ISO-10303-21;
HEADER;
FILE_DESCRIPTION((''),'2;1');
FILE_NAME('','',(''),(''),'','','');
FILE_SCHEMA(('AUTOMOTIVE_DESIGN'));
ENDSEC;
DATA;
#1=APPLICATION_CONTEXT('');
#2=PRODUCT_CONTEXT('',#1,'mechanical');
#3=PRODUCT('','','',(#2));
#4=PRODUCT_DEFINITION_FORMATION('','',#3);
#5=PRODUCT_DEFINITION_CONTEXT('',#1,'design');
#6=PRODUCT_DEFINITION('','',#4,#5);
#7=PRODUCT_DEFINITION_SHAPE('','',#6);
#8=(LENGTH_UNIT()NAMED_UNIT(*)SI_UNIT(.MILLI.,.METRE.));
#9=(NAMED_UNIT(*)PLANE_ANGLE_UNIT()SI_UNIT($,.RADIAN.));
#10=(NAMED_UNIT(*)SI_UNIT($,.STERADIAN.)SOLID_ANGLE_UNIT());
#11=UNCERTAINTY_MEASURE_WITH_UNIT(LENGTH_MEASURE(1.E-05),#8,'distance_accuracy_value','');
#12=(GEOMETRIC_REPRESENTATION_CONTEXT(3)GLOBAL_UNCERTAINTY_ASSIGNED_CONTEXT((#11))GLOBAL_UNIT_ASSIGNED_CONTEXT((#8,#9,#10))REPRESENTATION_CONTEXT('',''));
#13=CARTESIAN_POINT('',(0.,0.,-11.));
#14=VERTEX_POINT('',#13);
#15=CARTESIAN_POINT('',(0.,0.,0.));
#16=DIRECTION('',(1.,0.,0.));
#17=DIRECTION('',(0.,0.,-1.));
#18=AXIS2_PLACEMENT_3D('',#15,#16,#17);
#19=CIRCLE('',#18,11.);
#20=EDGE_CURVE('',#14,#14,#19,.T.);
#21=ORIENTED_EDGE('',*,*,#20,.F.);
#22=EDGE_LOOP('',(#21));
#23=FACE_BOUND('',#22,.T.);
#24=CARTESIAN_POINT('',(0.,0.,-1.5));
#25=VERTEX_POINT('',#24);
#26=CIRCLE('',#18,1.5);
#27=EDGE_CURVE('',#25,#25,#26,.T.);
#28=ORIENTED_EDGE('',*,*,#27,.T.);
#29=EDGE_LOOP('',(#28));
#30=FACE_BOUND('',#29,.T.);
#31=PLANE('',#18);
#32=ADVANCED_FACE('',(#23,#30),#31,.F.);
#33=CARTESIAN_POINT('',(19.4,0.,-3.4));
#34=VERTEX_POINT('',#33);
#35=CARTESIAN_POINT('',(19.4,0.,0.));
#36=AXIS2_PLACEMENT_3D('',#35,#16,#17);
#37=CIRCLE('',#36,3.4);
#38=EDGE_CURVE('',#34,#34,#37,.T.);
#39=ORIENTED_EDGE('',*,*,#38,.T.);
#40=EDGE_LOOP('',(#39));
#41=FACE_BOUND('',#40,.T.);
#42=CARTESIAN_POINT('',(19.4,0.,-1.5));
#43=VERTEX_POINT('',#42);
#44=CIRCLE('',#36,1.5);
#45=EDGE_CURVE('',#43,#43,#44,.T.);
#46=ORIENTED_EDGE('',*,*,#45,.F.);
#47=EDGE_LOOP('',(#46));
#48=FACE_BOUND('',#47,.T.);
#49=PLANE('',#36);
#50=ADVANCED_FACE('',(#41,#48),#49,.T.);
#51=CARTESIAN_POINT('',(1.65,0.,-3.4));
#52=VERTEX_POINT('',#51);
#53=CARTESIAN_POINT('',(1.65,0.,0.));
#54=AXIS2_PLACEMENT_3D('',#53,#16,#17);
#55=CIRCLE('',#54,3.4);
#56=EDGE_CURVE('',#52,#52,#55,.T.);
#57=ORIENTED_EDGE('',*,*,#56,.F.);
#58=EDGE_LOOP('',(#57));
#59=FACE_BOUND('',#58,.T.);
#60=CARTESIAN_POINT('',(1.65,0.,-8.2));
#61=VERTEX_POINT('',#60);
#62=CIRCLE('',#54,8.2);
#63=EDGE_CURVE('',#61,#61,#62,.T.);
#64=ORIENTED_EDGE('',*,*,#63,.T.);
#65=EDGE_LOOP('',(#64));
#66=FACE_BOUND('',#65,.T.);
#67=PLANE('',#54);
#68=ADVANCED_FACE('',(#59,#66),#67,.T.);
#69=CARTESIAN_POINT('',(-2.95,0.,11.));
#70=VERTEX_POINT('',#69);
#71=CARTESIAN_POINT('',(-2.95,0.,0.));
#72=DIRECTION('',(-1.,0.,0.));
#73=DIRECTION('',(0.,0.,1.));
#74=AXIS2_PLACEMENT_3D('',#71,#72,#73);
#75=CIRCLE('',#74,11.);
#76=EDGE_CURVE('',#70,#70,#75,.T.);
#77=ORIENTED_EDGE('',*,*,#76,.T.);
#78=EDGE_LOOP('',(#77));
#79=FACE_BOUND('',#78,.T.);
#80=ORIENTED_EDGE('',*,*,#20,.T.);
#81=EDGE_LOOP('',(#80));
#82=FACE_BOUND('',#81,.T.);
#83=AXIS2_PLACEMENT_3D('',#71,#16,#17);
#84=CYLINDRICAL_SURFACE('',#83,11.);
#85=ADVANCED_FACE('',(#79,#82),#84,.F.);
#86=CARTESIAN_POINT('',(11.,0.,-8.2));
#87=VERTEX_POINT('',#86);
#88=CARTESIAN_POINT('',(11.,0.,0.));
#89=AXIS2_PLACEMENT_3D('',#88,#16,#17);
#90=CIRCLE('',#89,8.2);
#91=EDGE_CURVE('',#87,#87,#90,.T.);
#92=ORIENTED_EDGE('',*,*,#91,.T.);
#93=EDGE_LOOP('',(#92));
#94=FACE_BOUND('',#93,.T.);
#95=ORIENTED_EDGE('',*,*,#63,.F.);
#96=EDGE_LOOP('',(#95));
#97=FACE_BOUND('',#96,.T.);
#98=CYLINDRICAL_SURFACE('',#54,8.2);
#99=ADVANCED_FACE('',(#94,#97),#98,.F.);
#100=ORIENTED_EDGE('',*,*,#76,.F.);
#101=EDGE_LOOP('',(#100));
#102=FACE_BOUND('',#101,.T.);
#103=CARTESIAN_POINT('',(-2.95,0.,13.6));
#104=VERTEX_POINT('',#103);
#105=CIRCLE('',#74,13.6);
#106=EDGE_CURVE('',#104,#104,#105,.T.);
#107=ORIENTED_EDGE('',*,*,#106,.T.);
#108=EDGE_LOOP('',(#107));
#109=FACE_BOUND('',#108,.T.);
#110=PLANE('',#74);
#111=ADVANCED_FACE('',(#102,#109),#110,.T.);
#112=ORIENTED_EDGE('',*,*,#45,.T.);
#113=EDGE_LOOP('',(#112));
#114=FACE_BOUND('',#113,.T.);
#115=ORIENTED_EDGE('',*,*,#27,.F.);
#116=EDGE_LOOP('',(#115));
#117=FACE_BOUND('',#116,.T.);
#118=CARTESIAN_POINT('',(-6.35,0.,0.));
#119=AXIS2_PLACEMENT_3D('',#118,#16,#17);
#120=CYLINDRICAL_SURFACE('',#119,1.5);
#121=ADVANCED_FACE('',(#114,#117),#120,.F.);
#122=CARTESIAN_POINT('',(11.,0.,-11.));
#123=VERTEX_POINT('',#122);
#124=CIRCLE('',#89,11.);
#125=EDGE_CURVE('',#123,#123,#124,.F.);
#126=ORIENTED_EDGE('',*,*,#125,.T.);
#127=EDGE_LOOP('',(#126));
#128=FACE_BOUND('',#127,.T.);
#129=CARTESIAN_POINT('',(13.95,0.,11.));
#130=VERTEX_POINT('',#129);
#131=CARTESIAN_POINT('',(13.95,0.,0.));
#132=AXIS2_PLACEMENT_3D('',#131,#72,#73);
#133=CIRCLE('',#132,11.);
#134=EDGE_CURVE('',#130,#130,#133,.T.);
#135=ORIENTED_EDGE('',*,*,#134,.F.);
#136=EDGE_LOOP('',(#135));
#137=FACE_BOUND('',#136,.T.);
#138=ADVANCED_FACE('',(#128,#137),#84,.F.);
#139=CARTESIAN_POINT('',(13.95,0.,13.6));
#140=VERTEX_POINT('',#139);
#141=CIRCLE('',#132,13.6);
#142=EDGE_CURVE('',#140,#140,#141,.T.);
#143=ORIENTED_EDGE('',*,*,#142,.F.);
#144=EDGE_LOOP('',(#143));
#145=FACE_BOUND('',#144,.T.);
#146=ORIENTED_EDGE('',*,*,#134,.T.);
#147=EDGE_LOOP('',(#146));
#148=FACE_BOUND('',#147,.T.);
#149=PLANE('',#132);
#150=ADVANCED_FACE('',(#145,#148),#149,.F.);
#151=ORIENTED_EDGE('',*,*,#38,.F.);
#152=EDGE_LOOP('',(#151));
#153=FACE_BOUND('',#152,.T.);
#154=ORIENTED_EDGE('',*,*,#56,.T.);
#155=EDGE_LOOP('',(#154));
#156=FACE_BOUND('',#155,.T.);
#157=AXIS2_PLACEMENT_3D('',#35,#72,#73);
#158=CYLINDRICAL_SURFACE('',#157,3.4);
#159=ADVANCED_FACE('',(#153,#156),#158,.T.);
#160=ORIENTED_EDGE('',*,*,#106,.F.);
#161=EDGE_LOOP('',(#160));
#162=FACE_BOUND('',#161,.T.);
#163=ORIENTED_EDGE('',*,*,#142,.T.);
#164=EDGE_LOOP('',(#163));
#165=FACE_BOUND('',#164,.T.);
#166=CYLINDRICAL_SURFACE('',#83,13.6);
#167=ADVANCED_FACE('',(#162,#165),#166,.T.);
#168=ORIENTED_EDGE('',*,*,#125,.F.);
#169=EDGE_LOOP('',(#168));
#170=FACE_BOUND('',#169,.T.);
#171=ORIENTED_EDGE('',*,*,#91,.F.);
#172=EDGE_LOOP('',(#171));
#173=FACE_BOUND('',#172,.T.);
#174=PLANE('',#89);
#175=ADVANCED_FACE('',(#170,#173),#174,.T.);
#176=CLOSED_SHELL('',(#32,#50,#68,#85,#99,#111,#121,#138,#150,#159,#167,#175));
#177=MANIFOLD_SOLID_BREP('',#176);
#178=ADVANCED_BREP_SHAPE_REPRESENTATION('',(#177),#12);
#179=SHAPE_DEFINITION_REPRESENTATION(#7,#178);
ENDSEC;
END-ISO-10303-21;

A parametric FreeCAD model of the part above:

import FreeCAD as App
import Part
import Sketcher
from FreeCAD import Vector
Q = App.Units.Quantity

doc = App.newDocument("Part")
body = doc.addObject("PartDesign::Body", "Body")

sketch1 = body.newObject("Sketcher::SketchObject", "Sketch")
sketch1.AttachmentSupport = (doc.getObject("YZ_Plane"), [""])
sketch1.MapMode = "FlatFace"
sketch1.addGeometry(Part.Circle(Vector(0, 0, 0), Vector(0, 0, 1), 11), False)
sketch1.addConstraint([
    Sketcher.Constraint("Coincident", 0, 3, -1, 1),
    Sketcher.Constraint("Diameter", 0, Q("22 mm")),
])
pad1 = body.newObject("PartDesign::Pad", "Pad")
pad1.Profile = sketch1
pad1.Length = 11

sketch2 = body.newObject("Sketcher::SketchObject", "Sketch001")
sketch2.AttachmentSupport = (doc.getObject("YZ_Plane"), [""])
sketch2.MapMode = "FlatFace"
sketch2.AttachmentOffset = App.Placement(Vector(0, 0, 11), App.Rotation())
sketch2.addGeometry(Part.Circle(Vector(0, 0, 0), Vector(0, 0, 1), 8), False)
sketch2.addConstraint([
    Sketcher.Constraint("Coincident", 0, 3, -1, 1),
    Sketcher.Constraint("Diameter", 0, Q("16.4 mm")),
])
pocket1 = body.newObject("PartDesign::Pocket", "Pocket")
pocket1.Profile = sketch2
pocket1.Length = 9.35

sketch3 = body.newObject("Sketcher::SketchObject", "Sketch002")
sketch3.AttachmentSupport = (doc.getObject("YZ_Plane"), [""])
sketch3.MapMode = "FlatFace"
sketch3.AttachmentOffset = App.Placement(Vector(0, 0, 1.65), App.Rotation())
sketch3.addGeometry(Part.Circle(Vector(0, 0, 0), Vector(0, 0, 1), 3.4), False)
sketch3.addConstraint([
    Sketcher.Constraint("Coincident", 0, 3, -1, 1),
    Sketcher.Constraint("Diameter", 0, Q("6.8 mm")),
])
pad2 = body.newObject("PartDesign::Pad", "Pad001")
pad2.Profile = sketch3
pad2.Length = 17.75

sketch4 = body.newObject("Sketcher::SketchObject", "Sketch003")
sketch4.AttachmentSupport = (doc.getObject("YZ_Plane"), [""])
sketch4.MapMode = "FlatFace"
sketch4.AttachmentOffset = App.Placement(Vector(0, 0, 19.4), App.Rotation())
sketch4.addGeometry(Part.Circle(Vector(0, 0, 0), Vector(0, 0, 1), 1.5), False)
sketch4.addConstraint([
    Sketcher.Constraint("Coincident", 0, 3, -1, 1),
    Sketcher.Constraint("Diameter", 0, Q("3 mm")),
])
pocket2 = body.newObject("PartDesign::Pocket", "Pocket001")
pocket2.Profile = sketch4
pocket2.Length = 25.75

sketch5 = body.newObject("Sketcher::SketchObject", "Sketch004")
sketch5.AttachmentSupport = (doc.getObject("YZ_Plane"), [""])
sketch5.MapMode = "FlatFace"
sketch5.addGeometry([
    Part.Circle(Vector(0, 0, 0), Vector(0, 0, 1), 14),
    Part.Circle(Vector(0, 0, 0), Vector(0, 0, 1), 11),
], False)
sketch5.addConstraint([
    Sketcher.Constraint("Coincident", 0, 3, -1, 1),
    Sketcher.Constraint("Coincident", 1, 3, -1, 1),
    Sketcher.Constraint("Diameter", 1, Q("22 mm")),
    Sketcher.Constraint("Diameter", 0, Q("27.2 mm")),
])
pad3 = body.newObject("PartDesign::Pad", "Pad002")
pad3.Profile = sketch5
pad3.Type = "TwoLengths"
pad3.Length = 2.95
pad3.Length2 = 13.95
pad3.Reversed = True

doc.recompute()
